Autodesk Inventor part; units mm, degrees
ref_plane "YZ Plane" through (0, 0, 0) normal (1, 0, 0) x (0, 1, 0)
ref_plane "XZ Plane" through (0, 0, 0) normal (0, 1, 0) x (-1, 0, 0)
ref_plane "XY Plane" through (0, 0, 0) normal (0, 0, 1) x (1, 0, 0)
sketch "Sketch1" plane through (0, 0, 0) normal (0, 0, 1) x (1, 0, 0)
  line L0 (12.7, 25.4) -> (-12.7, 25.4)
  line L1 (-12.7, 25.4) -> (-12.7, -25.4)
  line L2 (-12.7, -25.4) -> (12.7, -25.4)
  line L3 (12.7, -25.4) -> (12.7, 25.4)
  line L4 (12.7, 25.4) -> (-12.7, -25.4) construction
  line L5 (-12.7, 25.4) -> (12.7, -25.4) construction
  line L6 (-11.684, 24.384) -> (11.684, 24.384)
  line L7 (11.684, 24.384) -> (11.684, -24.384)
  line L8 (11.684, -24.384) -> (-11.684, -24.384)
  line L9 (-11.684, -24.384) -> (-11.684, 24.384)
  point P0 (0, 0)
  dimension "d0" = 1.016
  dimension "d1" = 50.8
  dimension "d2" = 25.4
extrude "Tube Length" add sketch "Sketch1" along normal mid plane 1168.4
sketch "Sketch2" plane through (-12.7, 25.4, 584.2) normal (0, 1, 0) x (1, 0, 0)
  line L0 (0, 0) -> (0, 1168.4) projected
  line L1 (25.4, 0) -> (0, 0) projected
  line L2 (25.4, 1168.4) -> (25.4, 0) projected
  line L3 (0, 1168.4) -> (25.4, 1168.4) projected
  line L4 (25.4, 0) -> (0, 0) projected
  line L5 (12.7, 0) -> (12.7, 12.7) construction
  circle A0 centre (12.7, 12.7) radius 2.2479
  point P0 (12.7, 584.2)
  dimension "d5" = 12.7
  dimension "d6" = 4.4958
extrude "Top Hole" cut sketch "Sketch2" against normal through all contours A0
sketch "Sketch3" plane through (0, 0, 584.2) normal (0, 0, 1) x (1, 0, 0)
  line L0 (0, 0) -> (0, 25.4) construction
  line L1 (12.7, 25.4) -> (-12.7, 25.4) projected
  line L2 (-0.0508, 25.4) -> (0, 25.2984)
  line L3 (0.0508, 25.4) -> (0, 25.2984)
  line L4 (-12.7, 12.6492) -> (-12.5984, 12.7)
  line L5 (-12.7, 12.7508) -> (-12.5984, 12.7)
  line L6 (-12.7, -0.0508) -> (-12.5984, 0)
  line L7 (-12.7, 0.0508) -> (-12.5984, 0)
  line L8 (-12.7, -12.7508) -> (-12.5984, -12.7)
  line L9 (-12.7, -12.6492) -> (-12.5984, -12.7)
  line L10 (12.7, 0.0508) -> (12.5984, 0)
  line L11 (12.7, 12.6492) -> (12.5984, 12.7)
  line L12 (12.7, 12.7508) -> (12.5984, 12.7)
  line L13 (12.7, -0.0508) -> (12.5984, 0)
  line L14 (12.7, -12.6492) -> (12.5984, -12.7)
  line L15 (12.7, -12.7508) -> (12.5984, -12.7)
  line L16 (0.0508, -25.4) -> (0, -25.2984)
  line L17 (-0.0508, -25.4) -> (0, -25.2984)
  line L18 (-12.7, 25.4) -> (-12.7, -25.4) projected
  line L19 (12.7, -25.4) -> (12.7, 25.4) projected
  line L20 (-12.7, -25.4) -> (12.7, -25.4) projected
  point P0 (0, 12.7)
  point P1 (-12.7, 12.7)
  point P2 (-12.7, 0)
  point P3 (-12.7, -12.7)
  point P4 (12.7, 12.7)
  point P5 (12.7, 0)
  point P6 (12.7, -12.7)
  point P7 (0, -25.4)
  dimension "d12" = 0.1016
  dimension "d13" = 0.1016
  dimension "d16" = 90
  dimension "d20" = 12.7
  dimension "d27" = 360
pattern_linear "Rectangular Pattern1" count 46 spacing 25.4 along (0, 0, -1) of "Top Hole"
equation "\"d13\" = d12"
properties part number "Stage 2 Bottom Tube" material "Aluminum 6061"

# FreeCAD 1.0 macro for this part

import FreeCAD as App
import Part
import Sketcher
from FreeCAD import Vector
Q = App.Units.Quantity


def add_polygon(sketch, points):
    """Adds a closed chain of lines whose ends are joined by coincident constraints."""
    first, n = sketch.GeometryCount, len(points)
    for a, b in zip(points, points[1:] + points[:1]):
        sketch.addGeometry(Part.LineSegment(App.Vector(*a, 0), App.Vector(*b, 0)), False)
    for i in range(n):
        sketch.addConstraint(Sketcher.Constraint("Coincident", first + i, 2, first + (i + 1) % n, 1))

doc = App.newDocument("Part")
body = doc.addObject("PartDesign::Body", "Body")

sketch1 = body.newObject("Sketcher::SketchObject", "Sketch")
sketch1.AttachmentSupport = (doc.getObject("XY_Plane"), [""])
sketch1.MapMode = "FlatFace"
add_polygon(sketch1, [(12.7, -25.4), (12.7, 25.4), (-12.7, 25.4), (-12.7, -25.4)])
add_polygon(sketch1, [(-11.684, -24.384), (-11.684, 24.384), (11.684, 24.384), (11.684, -24.384)])
sketch1.addConstraint(Sketcher.Constraint("Vertical", 0))
sketch1.addConstraint(Sketcher.Constraint("Horizontal", 1))
sketch1.addConstraint(Sketcher.Constraint("Vertical", 2))
sketch1.addConstraint(Sketcher.Constraint("Horizontal", 3))
sketch1.addConstraint(Sketcher.Constraint("Vertical", 4))
sketch1.addConstraint(Sketcher.Constraint("Horizontal", 5))
sketch1.addConstraint(Sketcher.Constraint("Vertical", 6))
sketch1.addConstraint(Sketcher.Constraint("Horizontal", 7))
sketch1.addConstraint(Sketcher.Constraint("Symmetric", 0, 2, 2, 2, -1, 1))
sketch1.addConstraint(Sketcher.Constraint("Symmetric", 4, 2, 6, 2, -1, 1))
sketch1.addConstraint(Sketcher.Constraint("DistanceX", 1, 2, 1, 1, Q("1 in")))
sketch1.addConstraint(Sketcher.Constraint("DistanceY", 0, 1, 0, 2, Q("2 in")))
sketch1.addConstraint(Sketcher.Constraint("DistanceX", 1, 2, 4, 2, Q("0.04 in")))
sketch1.addConstraint(Sketcher.Constraint("DistanceY", 4, 2, 1, 2, Q("0.04 in")))
pad1 = body.newObject("PartDesign::Pad", "Pad")
pad1.Profile = sketch1
pad1.Length = Q("46 in")
pad1.Midplane = True

sketch2 = body.newObject("Sketcher::SketchObject", "Sketch001")
sketch2.AttachmentSupport = (doc.getObject("XZ_Plane"), [""])
sketch2.MapMode = "FlatFace"
sketch2.AttachmentOffset = App.Placement(Vector(0, 0, -1 * 25.4), App.Rotation())
sketch2.addGeometry(Part.Circle(Vector(0, 571.5, 0), Vector(0, 0, 1), 2.2479), False)
sketch2.addConstraint(Sketcher.Constraint("PointOnObject", 0, 3, -2))
sketch2.addConstraint(Sketcher.Constraint("Diameter", 0, Q("0.177 in")))
sketch2.addConstraint(Sketcher.Constraint("DistanceY", -1, 1, 0, 3, Q("22.5 in")))
pocket1 = body.newObject("PartDesign::Pocket", "Pocket")
pocket1.Profile = sketch2
pocket1.Type = "ThroughAll"
pocket1.Reversed = True
doc.recompute()

linearpattern = body.newObject("PartDesign::LinearPattern", "LinearPattern")
linearpattern.Originals = [pocket1]
linearpattern.Direction = (doc.getObject("Z_Axis"), [""])
linearpattern.Mode = "offset"
linearpattern.Offset = Q("1 in")
linearpattern.Occurrences = 46
linearpattern.Reversed = True
body.Tip = linearpattern

doc.recompute()
